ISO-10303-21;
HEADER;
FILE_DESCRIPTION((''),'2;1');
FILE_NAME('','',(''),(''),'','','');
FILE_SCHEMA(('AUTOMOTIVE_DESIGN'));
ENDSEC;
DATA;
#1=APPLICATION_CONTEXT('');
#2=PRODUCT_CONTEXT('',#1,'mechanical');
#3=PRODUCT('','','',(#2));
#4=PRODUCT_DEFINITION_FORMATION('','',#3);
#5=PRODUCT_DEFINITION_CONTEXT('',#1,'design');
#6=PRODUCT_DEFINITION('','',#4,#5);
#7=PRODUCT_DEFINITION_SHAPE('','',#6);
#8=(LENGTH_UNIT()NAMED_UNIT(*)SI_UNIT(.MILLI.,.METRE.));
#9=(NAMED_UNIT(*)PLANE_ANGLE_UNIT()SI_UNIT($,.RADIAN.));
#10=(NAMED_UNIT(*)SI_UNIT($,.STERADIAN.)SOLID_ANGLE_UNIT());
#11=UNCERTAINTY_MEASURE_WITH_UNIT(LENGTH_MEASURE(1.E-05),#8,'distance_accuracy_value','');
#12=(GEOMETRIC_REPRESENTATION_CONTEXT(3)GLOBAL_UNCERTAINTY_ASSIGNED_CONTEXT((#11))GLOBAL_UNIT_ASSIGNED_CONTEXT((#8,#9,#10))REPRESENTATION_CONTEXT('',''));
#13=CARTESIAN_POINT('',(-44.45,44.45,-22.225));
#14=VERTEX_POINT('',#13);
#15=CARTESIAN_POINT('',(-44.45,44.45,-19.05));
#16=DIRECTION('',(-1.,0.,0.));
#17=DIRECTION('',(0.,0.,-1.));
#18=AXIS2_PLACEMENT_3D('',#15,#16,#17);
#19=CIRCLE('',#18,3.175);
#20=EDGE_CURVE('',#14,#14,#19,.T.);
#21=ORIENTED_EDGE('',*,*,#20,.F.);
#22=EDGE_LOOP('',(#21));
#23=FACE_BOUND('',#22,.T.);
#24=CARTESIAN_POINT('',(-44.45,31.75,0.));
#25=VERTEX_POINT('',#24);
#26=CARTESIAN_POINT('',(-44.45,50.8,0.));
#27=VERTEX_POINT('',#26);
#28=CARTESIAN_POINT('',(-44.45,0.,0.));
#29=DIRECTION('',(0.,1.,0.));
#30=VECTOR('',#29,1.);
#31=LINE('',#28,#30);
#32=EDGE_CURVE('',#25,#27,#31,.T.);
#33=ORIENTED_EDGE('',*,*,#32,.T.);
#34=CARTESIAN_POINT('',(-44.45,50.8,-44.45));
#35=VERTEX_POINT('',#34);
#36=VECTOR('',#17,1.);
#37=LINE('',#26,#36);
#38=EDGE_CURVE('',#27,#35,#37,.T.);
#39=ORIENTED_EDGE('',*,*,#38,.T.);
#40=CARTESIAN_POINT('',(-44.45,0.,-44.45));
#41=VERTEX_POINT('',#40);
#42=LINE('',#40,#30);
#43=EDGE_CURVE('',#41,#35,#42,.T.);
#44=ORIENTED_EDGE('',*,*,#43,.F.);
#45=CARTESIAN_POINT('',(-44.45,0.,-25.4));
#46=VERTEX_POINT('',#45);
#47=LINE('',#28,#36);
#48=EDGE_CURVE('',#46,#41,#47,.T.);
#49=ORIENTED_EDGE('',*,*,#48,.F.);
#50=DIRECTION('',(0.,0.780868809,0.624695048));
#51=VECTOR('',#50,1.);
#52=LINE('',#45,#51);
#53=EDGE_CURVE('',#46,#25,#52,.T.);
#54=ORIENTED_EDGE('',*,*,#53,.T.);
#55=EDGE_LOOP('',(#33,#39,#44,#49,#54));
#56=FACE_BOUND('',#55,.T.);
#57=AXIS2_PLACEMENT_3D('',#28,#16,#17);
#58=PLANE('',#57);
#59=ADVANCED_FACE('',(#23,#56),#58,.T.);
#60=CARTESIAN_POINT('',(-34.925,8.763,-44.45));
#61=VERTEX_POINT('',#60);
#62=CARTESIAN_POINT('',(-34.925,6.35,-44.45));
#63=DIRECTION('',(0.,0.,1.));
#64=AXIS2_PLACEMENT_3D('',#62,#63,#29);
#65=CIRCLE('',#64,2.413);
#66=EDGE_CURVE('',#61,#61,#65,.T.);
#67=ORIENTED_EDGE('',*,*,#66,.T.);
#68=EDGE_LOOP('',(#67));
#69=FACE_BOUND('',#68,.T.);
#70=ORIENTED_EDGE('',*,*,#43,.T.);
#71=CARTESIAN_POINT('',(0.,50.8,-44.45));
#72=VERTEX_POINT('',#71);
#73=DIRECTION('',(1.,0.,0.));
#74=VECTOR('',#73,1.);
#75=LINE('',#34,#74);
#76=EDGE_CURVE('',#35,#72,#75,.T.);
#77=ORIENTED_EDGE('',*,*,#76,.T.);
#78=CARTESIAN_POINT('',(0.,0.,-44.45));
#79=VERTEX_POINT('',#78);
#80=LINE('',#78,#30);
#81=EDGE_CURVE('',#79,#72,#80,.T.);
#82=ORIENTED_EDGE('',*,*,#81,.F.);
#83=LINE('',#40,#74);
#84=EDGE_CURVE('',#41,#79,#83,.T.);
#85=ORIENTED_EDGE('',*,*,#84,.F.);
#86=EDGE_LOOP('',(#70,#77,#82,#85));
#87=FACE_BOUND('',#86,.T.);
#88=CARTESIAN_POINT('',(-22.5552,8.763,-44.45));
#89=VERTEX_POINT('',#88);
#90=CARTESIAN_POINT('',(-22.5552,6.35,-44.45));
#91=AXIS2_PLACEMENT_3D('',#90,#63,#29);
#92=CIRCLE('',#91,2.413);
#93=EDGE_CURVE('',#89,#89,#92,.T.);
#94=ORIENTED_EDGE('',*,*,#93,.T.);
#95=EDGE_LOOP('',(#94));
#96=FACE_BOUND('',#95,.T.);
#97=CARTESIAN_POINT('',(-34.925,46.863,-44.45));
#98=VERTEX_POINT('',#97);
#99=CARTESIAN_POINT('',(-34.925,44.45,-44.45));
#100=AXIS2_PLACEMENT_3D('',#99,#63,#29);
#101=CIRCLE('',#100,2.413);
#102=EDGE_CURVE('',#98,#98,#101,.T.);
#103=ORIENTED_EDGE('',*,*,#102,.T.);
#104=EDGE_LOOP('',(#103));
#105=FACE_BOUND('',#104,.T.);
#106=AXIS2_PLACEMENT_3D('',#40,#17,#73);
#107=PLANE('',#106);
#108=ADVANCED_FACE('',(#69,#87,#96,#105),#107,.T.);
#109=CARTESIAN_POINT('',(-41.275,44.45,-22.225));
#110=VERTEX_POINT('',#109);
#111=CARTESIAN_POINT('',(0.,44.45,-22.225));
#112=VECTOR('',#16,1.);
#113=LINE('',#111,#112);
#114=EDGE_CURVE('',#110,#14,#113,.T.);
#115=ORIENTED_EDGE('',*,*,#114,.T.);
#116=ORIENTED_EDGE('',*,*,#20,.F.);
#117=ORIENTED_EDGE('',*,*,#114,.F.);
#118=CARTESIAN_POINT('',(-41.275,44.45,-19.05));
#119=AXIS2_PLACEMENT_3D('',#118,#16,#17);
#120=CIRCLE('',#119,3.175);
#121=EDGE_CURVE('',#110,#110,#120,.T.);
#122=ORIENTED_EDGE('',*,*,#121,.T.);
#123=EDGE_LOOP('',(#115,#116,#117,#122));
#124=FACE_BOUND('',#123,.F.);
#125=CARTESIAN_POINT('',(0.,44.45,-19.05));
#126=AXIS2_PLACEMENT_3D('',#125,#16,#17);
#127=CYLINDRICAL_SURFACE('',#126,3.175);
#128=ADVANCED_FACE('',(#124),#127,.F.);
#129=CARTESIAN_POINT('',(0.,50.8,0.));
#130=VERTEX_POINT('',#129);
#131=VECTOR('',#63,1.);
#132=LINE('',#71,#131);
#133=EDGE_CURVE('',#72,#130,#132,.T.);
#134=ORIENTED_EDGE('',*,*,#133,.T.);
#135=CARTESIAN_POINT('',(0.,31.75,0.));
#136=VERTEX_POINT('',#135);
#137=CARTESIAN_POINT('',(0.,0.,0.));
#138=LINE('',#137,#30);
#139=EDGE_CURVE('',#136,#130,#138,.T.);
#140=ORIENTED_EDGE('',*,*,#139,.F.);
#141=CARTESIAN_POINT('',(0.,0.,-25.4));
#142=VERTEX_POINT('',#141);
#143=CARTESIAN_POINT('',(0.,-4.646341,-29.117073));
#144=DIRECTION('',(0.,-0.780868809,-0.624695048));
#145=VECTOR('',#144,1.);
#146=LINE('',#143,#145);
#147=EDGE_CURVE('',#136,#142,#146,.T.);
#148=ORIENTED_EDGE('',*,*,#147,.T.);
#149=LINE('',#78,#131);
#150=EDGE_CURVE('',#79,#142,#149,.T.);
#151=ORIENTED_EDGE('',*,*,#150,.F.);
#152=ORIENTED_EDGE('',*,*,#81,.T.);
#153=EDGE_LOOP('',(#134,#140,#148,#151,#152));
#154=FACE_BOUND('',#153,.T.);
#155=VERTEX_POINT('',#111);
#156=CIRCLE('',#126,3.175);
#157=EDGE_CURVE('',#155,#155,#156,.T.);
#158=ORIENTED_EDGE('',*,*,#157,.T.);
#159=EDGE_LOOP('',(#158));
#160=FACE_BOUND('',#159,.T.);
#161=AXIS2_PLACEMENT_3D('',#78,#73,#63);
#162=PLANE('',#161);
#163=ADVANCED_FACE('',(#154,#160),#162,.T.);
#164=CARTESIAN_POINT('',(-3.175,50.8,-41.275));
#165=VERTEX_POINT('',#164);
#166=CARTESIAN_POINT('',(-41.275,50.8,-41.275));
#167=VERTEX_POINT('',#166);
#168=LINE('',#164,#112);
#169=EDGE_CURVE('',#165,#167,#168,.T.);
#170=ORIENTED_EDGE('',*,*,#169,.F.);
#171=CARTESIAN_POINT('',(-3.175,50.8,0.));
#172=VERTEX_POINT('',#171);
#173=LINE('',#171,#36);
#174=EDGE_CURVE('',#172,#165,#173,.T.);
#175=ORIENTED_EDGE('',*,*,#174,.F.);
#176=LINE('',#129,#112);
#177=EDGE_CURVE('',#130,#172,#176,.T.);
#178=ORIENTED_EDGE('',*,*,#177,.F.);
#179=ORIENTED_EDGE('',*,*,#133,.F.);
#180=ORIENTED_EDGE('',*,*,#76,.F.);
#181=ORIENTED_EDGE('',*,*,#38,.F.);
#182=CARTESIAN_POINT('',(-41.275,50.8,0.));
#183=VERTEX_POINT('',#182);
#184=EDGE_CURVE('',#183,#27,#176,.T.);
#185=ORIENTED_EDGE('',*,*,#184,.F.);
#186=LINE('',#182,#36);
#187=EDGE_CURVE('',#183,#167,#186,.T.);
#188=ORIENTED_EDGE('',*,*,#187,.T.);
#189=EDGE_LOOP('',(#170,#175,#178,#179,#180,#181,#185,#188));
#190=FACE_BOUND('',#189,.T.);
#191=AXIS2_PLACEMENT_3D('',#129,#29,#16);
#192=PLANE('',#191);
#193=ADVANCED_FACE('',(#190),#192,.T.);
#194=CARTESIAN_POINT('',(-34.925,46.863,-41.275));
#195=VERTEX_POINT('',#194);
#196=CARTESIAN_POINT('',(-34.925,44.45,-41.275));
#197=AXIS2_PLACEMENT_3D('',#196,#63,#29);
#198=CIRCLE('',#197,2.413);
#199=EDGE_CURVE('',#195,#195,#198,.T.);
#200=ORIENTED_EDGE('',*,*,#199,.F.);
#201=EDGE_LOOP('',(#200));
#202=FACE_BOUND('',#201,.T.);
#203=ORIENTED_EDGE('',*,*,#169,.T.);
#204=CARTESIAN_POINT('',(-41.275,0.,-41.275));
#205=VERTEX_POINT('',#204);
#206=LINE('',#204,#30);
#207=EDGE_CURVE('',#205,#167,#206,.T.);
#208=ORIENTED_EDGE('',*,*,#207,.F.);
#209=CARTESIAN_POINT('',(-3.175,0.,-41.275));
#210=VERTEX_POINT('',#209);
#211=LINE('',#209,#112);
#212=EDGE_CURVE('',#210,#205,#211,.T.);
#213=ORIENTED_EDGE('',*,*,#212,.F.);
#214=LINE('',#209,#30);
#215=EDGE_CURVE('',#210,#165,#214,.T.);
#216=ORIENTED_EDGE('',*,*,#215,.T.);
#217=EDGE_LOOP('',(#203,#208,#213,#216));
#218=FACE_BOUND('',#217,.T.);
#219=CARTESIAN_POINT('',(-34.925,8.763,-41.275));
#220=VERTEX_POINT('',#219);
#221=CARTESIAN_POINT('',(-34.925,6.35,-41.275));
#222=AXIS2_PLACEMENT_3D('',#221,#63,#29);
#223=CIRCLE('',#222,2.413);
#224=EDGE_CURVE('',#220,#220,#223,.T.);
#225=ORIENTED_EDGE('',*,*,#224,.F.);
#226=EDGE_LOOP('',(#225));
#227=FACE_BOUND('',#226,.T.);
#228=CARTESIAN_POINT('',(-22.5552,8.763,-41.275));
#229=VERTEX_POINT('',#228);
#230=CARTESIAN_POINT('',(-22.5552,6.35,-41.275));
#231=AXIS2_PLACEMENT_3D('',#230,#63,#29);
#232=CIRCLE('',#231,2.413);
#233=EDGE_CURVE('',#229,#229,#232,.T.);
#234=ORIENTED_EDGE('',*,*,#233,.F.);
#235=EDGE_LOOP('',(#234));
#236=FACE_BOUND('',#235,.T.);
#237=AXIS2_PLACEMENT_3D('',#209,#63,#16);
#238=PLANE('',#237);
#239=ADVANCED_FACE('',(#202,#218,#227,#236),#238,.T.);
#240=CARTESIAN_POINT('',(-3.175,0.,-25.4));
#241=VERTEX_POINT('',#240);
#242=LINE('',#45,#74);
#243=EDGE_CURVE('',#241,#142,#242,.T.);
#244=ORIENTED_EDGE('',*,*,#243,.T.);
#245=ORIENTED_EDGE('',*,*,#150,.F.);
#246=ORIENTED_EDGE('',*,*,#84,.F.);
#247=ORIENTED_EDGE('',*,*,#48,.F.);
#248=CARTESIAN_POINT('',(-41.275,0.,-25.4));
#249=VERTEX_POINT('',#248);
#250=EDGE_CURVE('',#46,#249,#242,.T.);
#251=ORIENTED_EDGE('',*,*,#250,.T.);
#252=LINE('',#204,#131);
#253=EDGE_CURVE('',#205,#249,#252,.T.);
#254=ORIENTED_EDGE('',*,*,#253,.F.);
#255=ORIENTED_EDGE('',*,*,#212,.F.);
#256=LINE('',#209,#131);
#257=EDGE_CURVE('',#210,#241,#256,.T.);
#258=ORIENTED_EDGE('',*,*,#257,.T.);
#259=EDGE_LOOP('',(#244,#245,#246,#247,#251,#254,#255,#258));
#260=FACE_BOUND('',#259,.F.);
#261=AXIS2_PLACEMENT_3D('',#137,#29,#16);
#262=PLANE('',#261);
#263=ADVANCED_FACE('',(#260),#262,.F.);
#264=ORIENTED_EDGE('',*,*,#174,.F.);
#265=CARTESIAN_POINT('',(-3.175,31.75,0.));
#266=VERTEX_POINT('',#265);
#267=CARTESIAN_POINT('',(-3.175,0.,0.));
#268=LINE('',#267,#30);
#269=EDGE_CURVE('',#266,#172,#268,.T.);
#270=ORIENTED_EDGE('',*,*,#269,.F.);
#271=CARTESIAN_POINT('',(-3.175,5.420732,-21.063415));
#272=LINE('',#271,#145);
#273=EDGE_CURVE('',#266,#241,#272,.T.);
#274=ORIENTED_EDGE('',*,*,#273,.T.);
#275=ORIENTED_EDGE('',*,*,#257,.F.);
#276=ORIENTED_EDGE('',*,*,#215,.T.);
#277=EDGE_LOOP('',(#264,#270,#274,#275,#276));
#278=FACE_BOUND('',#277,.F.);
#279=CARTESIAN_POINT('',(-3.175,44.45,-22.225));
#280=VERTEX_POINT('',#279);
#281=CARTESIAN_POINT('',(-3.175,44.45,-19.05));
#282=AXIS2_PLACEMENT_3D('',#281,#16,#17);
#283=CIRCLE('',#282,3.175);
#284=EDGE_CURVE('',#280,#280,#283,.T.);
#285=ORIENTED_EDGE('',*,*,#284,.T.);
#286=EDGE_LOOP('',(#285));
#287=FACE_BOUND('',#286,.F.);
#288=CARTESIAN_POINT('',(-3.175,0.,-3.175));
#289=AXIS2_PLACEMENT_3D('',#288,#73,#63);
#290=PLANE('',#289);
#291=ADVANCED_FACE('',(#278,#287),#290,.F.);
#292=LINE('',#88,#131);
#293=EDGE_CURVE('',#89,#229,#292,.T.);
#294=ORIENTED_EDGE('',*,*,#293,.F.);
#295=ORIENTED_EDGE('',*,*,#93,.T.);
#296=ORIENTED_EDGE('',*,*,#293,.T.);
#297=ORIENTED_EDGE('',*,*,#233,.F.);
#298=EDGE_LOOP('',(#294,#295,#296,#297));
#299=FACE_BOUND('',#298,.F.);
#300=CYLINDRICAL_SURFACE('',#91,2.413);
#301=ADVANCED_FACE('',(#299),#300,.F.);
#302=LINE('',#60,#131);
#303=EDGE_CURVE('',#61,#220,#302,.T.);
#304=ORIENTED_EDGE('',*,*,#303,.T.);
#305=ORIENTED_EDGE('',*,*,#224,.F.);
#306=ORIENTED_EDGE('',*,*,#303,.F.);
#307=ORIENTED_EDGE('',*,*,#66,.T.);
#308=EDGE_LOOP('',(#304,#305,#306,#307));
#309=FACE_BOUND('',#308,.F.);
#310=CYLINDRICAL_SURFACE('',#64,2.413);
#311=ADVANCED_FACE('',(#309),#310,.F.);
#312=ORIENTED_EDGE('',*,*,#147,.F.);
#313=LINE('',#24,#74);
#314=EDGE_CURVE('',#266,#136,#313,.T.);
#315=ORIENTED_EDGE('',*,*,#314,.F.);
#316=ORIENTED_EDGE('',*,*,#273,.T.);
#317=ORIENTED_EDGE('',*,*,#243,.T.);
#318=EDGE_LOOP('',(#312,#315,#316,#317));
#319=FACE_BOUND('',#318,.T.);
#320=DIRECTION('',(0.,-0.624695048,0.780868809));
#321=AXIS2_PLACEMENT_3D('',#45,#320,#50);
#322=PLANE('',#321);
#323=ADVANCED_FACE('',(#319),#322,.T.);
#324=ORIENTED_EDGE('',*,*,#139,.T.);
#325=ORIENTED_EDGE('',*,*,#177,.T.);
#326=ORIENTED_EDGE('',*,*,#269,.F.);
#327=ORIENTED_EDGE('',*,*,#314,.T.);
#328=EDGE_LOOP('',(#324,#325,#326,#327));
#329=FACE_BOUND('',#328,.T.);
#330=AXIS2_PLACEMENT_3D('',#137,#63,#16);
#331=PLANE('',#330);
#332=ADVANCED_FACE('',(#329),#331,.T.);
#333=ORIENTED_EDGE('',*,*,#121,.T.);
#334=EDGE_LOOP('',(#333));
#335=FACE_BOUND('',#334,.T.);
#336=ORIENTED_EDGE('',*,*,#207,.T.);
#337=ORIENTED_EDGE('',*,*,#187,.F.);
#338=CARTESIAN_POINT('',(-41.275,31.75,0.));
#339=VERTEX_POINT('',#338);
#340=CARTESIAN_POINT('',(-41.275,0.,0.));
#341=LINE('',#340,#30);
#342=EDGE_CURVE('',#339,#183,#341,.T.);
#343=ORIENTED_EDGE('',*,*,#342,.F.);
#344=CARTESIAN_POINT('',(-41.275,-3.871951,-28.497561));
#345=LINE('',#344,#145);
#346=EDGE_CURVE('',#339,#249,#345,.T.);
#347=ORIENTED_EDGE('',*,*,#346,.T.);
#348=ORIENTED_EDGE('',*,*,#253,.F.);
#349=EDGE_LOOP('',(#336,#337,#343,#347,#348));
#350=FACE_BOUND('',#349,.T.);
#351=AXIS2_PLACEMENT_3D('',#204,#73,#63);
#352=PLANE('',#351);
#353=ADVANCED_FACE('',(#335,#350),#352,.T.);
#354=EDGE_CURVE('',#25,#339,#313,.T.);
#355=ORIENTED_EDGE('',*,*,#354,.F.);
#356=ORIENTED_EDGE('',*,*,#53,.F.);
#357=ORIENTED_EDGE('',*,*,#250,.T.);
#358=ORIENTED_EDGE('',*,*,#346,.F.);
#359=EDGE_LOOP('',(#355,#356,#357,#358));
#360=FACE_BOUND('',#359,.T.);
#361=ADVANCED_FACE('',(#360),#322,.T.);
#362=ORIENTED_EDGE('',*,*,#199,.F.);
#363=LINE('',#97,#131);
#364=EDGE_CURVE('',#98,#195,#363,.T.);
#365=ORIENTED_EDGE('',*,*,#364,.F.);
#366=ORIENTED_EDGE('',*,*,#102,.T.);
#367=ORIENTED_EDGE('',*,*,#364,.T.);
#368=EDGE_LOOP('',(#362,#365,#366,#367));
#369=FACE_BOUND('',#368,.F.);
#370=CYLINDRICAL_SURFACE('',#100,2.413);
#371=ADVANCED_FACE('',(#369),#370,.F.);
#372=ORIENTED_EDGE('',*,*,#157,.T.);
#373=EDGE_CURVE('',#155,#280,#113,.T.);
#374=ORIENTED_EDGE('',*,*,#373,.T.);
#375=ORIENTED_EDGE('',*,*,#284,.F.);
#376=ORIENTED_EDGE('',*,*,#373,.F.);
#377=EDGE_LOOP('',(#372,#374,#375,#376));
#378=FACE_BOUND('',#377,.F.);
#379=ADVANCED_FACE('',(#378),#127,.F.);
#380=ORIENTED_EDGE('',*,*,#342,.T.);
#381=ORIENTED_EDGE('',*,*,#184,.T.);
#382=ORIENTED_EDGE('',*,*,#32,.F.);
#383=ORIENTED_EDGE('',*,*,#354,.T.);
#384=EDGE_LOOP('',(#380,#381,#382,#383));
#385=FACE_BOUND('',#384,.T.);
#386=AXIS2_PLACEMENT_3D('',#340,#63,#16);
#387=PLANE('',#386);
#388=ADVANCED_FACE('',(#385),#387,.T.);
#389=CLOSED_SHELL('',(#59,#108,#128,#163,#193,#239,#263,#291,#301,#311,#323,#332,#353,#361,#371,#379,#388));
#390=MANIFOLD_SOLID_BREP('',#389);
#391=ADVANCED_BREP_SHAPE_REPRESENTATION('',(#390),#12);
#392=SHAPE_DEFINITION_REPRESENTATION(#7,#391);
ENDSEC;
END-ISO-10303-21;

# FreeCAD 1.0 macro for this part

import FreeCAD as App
import Part
import Sketcher

V = App.Vector
Q = App.Units.Quantity

doc = App.newDocument("Part")
params = doc.addObject("Spreadsheet::Sheet", "Params")
for row, (alias, value) in enumerate([
    ("sketch1_width", "1.75 in"),
    ("sketch1_width2", "0.125 in"),
    ("pad1_length", "2 in"),
    ("sketch2_diameter", "0.25 in"),
    ("hole_diameter", "0.25 in"),
    ("sketch3_diameter", "0.19 in"),
    ("hole2_diameter", "0.19 in"),
    ("sketch4_height", "1 in"),
    ("sketch4_width", "1.25 in"),
    ("pocket1_length", "6 in"),
], start=1):
    params.set(f"A{row}", alias)
    params.set(f"B{row}", "=" + value)
    params.setAlias(f"B{row}", alias)

body = doc.addObject("PartDesign::Body", "Body")

# Sketch on XZ plane
sketch1 = doc.addObject("Sketcher::SketchObject", "Sketch")
body.addObject(sketch1)
sketch1.AttachmentSupport = (doc.XZ_Plane, [""])
sketch1.MapMode = "FlatFace"
sketch1.addGeometry(Part.LineSegment(V(-3.2, 0, 0), V(0, 0, 0)), False)
sketch1.addGeometry(Part.LineSegment(V(0, 0, 0), V(0, -44.5, 0)), False)
sketch1.addGeometry(Part.LineSegment(V(0, -44.5, 0), V(-44.5, -44.5, 0)), False)
sketch1.addGeometry(Part.LineSegment(V(-44.5, -44.5, 0), V(-44.5, 0, 0)), False)
sketch1.addGeometry(Part.LineSegment(V(-44.5, 0, 0), V(-41.3, 0, 0)), False)
sketch1.addGeometry(Part.LineSegment(V(-41.3, 0, 0), V(-41.3, -41.3, 0)), False)
sketch1.addGeometry(Part.LineSegment(V(-41.3, -41.3, 0), V(-3.2, -41.3, 0)), False)
sketch1.addGeometry(Part.LineSegment(V(-3.2, -41.3, 0), V(-3.2, 0, 0)), False)
sketch1.addConstraint(Sketcher.Constraint("Coincident", 0, 2, 1, 1))
sketch1.addConstraint(Sketcher.Constraint("Coincident", 1, 2, 2, 1))
sketch1.addConstraint(Sketcher.Constraint("Coincident", 2, 2, 3, 1))
sketch1.addConstraint(Sketcher.Constraint("Coincident", 3, 2, 4, 1))
sketch1.addConstraint(Sketcher.Constraint("Coincident", 4, 2, 5, 1))
sketch1.addConstraint(Sketcher.Constraint("Coincident", 5, 2, 6, 1))
sketch1.addConstraint(Sketcher.Constraint("Coincident", 6, 2, 7, 1))
sketch1.addConstraint(Sketcher.Constraint("Coincident", 7, 2, 0, 1))
sketch1.addConstraint(Sketcher.Constraint("Horizontal", 0))
sketch1.addConstraint(Sketcher.Constraint("Vertical", 1))
sketch1.addConstraint(Sketcher.Constraint("Horizontal", 2))
sketch1.addConstraint(Sketcher.Constraint("Vertical", 3))
sketch1.addConstraint(Sketcher.Constraint("Horizontal", 4))
sketch1.addConstraint(Sketcher.Constraint("Vertical", 5))
sketch1.addConstraint(Sketcher.Constraint("Horizontal", 6))
sketch1.addConstraint(Sketcher.Constraint("Vertical", 7))
sketch1.addConstraint(Sketcher.Constraint("Coincident", 0, 2, -1, 1))
sketch1.addConstraint(Sketcher.Constraint("PointOnObject", 3, 2, -1))
sketch1.addConstraint(Sketcher.Constraint("Equal", 0, 4))
sketch1.addConstraint(Sketcher.Constraint("Equal", 2, 1))
sketch1.addConstraint(Sketcher.Constraint("DistanceX", 2, 2, 2, 1, Q("1.75 in")))
sketch1.addConstraint(Sketcher.Constraint("DistanceX", 0, 1, 0, 2, Q("0.125 in")))
sketch1.addConstraint(Sketcher.Constraint("DistanceY", 2, 2, 5, 2, Q("0.125 in")))
sketch1.setExpression("Constraints[20]", "Params.sketch1_width")
sketch1.setExpression("Constraints[21]", "Params.sketch1_width2")
pad1 = doc.addObject("PartDesign::Pad", "Pad")
body.addObject(pad1)
pad1.Profile = sketch1
pad1.setExpression("Length", "Params.pad1_length")
pad1.Reversed = True

# Sketch on YZ plane
sketch2 = doc.addObject("Sketcher::SketchObject", "Sketch001")
body.addObject(sketch2)
sketch2.AttachmentSupport = (doc.YZ_Plane, [""])
sketch2.MapMode = "FlatFace"
sketch2.addGeometry(Part.Circle(V(44.5, -19.1, 0), V(0, 0, 1), 3.2), False)
sketch2.addConstraint(Sketcher.Constraint("Diameter", 0, Q("0.25 in")))
sketch2.addConstraint(Sketcher.Constraint("DistanceX", -1, 1, 0, 3, Q("1.75 in")))
sketch2.addConstraint(Sketcher.Constraint("DistanceY", 0, 3, -1, 1, Q("0.75 in")))
sketch2.setExpression("Constraints[0]", "Params.sketch2_diameter")
doc.recompute()
hole = doc.addObject("PartDesign::Hole", "Hole")
body.addObject(hole)
hole.Profile = sketch2
hole.ThreadType = "None"
hole.setExpression("Diameter", "Params.hole_diameter")
hole.DepthType = "ThroughAll"

# Sketch on XY plane
sketch3 = doc.addObject("Sketcher::SketchObject", "Sketch002")
body.addObject(sketch3)
sketch3.AttachmentSupport = (doc.XY_Plane, [""])
sketch3.MapMode = "FlatFace"
sketch3.AttachmentOffset = App.Placement(V(0, 0, -1.75 * 25.4), App.Rotation())
sketch3.addGeometry(Part.Circle(V(-34.9, 44.5, 0), V(0, 0, 1), 2.4), False)
sketch3.addGeometry(Part.Circle(V(-34.9, 6.3, 0), V(0, 0, 1), 2.4), False)
sketch3.addGeometry(Part.Circle(V(-22.6, 6.3, 0), V(0, 0, 1), 2.4), False)
sketch3.addConstraint(Sketcher.Constraint("Equal", 0, 1))
sketch3.addConstraint(Sketcher.Constraint("Equal", 1, 2))
sketch3.addConstraint(Sketcher.Constraint("Horizontal", 1, 3, 2, 3))
sketch3.addConstraint(Sketcher.Constraint("Vertical", 0, 3, 1, 3))
sketch3.addConstraint(Sketcher.Constraint("Diameter", 0, Q("0.19 in")))
sketch3.addConstraint(Sketcher.Constraint("DistanceY", 1, 3, 0, 3, Q("1.5 in")))
sketch3.addConstraint(Sketcher.Constraint("DistanceY", -1, 1, 0, 3, Q("1.75 in")))
sketch3.addConstraint(Sketcher.Constraint("DistanceX", 0, 3, -1, 1, Q("1.375 in")))
sketch3.addConstraint(Sketcher.Constraint("DistanceX", 2, 3, -1, 1, Q("0.888 in")))
sketch3.setExpression("Constraints[4]", "Params.sketch3_diameter")
doc.recompute()
hole2 = doc.addObject("PartDesign::Hole", "Hole001")
body.addObject(hole2)
hole2.Profile = sketch3
hole2.ThreadType = "None"
hole2.setExpression("Diameter", "Params.hole2_diameter")
hole2.DepthType = "ThroughAll"
hole2.Reversed = True

# Sketch on YZ plane
sketch4 = doc.addObject("Sketcher::SketchObject", "Sketch003")
body.addObject(sketch4)
sketch4.AttachmentSupport = (doc.YZ_Plane, [""])
sketch4.MapMode = "FlatFace"
sketch4.AttachmentOffset = App.Placement(V(0, 0, -1.75 * 25.4), App.Rotation())
sketch4.addGeometry(Part.LineSegment(V(32, 0, 0), V(0, -25, 0)), False)
sketch4.addGeometry(Part.LineSegment(V(0, -25, 0), V(0, 0, 0)), False)
sketch4.addGeometry(Part.LineSegment(V(0, 0, 0), V(32, 0, 0)), False)
sketch4.addConstraint(Sketcher.Constraint("Coincident", 0, 2, 1, 1))
sketch4.addConstraint(Sketcher.Constraint("Coincident", 1, 2, 2, 1))
sketch4.addConstraint(Sketcher.Constraint("Coincident", 2, 2, 0, 1))
sketch4.addConstraint(Sketcher.Constraint("Vertical", 1))
sketch4.addConstraint(Sketcher.Constraint("Horizontal", 2))
sketch4.addConstraint(Sketcher.Constraint("Coincident", 1, 2, -1, 1))
sketch4.addConstraint(Sketcher.Constraint("DistanceY", 1, 1, 1, 2, Q("1 in")))
sketch4.addConstraint(Sketcher.Constraint("DistanceX", 2, 1, 2, 2, Q("1.25 in")))
sketch4.setExpression("Constraints[6]", "Params.sketch4_height")
sketch4.setExpression("Constraints[7]", "Params.sketch4_width")
pocket1 = doc.addObject("PartDesign::Pocket", "Pocket")
body.addObject(pocket1)
pocket1.Profile = sketch4
pocket1.setExpression("Length", "Params.pocket1_length")
pocket1.Reversed = True

doc.recompute()
